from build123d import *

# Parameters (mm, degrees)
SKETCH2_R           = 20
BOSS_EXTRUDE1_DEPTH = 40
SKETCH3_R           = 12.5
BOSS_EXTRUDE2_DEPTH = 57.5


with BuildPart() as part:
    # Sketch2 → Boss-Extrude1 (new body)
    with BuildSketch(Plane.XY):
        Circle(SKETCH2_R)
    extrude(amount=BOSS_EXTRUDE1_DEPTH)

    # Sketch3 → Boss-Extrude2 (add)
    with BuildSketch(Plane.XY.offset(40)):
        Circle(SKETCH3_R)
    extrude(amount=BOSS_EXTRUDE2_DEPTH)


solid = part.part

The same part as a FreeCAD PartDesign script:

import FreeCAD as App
import Part
import Sketcher

V = App.Vector

doc = App.newDocument("Part")
body = doc.addObject("PartDesign::Body", "Body")

# Sketch on XY plane
sketch1 = body.newObject("Sketcher::SketchObject", "Sketch")
sketch1.AttachmentSupport = (doc.getObject("XY_Plane"), [""])
sketch1.MapMode = "FlatFace"
sketch1.addGeometry(Part.Circle(V(0, 0, 0), V(0, 0, 1), 20), False)
sketch1.addConstraint([
    Sketcher.Constraint("Coincident", 0, 3, -1, 1),
    Sketcher.Constraint("Diameter", 0, 40.0),
])
pad1 = body.newObject("PartDesign::Pad", "Pad")
pad1.Profile = sketch1
pad1.Length = 40

# Sketch on XY plane
sketch2 = body.newObject("Sketcher::SketchObject", "Sketch001")
sketch2.AttachmentSupport = (doc.getObject("XY_Plane"), [""])
sketch2.MapMode = "FlatFace"
sketch2.AttachmentOffset = App.Placement(V(0, 0, 40), App.Rotation())
sketch2.addGeometry(Part.Circle(V(0, 0, 0), V(0, 0, 1), 12), False)
sketch2.addConstraint([
    Sketcher.Constraint("Coincident", 0, 3, -1, 1),
    Sketcher.Constraint("Diameter", 0, 25.0),
])
pad2 = body.newObject("PartDesign::Pad", "Pad001")
pad2.Profile = sketch2
pad2.Length = 57.5

doc.recompute()
